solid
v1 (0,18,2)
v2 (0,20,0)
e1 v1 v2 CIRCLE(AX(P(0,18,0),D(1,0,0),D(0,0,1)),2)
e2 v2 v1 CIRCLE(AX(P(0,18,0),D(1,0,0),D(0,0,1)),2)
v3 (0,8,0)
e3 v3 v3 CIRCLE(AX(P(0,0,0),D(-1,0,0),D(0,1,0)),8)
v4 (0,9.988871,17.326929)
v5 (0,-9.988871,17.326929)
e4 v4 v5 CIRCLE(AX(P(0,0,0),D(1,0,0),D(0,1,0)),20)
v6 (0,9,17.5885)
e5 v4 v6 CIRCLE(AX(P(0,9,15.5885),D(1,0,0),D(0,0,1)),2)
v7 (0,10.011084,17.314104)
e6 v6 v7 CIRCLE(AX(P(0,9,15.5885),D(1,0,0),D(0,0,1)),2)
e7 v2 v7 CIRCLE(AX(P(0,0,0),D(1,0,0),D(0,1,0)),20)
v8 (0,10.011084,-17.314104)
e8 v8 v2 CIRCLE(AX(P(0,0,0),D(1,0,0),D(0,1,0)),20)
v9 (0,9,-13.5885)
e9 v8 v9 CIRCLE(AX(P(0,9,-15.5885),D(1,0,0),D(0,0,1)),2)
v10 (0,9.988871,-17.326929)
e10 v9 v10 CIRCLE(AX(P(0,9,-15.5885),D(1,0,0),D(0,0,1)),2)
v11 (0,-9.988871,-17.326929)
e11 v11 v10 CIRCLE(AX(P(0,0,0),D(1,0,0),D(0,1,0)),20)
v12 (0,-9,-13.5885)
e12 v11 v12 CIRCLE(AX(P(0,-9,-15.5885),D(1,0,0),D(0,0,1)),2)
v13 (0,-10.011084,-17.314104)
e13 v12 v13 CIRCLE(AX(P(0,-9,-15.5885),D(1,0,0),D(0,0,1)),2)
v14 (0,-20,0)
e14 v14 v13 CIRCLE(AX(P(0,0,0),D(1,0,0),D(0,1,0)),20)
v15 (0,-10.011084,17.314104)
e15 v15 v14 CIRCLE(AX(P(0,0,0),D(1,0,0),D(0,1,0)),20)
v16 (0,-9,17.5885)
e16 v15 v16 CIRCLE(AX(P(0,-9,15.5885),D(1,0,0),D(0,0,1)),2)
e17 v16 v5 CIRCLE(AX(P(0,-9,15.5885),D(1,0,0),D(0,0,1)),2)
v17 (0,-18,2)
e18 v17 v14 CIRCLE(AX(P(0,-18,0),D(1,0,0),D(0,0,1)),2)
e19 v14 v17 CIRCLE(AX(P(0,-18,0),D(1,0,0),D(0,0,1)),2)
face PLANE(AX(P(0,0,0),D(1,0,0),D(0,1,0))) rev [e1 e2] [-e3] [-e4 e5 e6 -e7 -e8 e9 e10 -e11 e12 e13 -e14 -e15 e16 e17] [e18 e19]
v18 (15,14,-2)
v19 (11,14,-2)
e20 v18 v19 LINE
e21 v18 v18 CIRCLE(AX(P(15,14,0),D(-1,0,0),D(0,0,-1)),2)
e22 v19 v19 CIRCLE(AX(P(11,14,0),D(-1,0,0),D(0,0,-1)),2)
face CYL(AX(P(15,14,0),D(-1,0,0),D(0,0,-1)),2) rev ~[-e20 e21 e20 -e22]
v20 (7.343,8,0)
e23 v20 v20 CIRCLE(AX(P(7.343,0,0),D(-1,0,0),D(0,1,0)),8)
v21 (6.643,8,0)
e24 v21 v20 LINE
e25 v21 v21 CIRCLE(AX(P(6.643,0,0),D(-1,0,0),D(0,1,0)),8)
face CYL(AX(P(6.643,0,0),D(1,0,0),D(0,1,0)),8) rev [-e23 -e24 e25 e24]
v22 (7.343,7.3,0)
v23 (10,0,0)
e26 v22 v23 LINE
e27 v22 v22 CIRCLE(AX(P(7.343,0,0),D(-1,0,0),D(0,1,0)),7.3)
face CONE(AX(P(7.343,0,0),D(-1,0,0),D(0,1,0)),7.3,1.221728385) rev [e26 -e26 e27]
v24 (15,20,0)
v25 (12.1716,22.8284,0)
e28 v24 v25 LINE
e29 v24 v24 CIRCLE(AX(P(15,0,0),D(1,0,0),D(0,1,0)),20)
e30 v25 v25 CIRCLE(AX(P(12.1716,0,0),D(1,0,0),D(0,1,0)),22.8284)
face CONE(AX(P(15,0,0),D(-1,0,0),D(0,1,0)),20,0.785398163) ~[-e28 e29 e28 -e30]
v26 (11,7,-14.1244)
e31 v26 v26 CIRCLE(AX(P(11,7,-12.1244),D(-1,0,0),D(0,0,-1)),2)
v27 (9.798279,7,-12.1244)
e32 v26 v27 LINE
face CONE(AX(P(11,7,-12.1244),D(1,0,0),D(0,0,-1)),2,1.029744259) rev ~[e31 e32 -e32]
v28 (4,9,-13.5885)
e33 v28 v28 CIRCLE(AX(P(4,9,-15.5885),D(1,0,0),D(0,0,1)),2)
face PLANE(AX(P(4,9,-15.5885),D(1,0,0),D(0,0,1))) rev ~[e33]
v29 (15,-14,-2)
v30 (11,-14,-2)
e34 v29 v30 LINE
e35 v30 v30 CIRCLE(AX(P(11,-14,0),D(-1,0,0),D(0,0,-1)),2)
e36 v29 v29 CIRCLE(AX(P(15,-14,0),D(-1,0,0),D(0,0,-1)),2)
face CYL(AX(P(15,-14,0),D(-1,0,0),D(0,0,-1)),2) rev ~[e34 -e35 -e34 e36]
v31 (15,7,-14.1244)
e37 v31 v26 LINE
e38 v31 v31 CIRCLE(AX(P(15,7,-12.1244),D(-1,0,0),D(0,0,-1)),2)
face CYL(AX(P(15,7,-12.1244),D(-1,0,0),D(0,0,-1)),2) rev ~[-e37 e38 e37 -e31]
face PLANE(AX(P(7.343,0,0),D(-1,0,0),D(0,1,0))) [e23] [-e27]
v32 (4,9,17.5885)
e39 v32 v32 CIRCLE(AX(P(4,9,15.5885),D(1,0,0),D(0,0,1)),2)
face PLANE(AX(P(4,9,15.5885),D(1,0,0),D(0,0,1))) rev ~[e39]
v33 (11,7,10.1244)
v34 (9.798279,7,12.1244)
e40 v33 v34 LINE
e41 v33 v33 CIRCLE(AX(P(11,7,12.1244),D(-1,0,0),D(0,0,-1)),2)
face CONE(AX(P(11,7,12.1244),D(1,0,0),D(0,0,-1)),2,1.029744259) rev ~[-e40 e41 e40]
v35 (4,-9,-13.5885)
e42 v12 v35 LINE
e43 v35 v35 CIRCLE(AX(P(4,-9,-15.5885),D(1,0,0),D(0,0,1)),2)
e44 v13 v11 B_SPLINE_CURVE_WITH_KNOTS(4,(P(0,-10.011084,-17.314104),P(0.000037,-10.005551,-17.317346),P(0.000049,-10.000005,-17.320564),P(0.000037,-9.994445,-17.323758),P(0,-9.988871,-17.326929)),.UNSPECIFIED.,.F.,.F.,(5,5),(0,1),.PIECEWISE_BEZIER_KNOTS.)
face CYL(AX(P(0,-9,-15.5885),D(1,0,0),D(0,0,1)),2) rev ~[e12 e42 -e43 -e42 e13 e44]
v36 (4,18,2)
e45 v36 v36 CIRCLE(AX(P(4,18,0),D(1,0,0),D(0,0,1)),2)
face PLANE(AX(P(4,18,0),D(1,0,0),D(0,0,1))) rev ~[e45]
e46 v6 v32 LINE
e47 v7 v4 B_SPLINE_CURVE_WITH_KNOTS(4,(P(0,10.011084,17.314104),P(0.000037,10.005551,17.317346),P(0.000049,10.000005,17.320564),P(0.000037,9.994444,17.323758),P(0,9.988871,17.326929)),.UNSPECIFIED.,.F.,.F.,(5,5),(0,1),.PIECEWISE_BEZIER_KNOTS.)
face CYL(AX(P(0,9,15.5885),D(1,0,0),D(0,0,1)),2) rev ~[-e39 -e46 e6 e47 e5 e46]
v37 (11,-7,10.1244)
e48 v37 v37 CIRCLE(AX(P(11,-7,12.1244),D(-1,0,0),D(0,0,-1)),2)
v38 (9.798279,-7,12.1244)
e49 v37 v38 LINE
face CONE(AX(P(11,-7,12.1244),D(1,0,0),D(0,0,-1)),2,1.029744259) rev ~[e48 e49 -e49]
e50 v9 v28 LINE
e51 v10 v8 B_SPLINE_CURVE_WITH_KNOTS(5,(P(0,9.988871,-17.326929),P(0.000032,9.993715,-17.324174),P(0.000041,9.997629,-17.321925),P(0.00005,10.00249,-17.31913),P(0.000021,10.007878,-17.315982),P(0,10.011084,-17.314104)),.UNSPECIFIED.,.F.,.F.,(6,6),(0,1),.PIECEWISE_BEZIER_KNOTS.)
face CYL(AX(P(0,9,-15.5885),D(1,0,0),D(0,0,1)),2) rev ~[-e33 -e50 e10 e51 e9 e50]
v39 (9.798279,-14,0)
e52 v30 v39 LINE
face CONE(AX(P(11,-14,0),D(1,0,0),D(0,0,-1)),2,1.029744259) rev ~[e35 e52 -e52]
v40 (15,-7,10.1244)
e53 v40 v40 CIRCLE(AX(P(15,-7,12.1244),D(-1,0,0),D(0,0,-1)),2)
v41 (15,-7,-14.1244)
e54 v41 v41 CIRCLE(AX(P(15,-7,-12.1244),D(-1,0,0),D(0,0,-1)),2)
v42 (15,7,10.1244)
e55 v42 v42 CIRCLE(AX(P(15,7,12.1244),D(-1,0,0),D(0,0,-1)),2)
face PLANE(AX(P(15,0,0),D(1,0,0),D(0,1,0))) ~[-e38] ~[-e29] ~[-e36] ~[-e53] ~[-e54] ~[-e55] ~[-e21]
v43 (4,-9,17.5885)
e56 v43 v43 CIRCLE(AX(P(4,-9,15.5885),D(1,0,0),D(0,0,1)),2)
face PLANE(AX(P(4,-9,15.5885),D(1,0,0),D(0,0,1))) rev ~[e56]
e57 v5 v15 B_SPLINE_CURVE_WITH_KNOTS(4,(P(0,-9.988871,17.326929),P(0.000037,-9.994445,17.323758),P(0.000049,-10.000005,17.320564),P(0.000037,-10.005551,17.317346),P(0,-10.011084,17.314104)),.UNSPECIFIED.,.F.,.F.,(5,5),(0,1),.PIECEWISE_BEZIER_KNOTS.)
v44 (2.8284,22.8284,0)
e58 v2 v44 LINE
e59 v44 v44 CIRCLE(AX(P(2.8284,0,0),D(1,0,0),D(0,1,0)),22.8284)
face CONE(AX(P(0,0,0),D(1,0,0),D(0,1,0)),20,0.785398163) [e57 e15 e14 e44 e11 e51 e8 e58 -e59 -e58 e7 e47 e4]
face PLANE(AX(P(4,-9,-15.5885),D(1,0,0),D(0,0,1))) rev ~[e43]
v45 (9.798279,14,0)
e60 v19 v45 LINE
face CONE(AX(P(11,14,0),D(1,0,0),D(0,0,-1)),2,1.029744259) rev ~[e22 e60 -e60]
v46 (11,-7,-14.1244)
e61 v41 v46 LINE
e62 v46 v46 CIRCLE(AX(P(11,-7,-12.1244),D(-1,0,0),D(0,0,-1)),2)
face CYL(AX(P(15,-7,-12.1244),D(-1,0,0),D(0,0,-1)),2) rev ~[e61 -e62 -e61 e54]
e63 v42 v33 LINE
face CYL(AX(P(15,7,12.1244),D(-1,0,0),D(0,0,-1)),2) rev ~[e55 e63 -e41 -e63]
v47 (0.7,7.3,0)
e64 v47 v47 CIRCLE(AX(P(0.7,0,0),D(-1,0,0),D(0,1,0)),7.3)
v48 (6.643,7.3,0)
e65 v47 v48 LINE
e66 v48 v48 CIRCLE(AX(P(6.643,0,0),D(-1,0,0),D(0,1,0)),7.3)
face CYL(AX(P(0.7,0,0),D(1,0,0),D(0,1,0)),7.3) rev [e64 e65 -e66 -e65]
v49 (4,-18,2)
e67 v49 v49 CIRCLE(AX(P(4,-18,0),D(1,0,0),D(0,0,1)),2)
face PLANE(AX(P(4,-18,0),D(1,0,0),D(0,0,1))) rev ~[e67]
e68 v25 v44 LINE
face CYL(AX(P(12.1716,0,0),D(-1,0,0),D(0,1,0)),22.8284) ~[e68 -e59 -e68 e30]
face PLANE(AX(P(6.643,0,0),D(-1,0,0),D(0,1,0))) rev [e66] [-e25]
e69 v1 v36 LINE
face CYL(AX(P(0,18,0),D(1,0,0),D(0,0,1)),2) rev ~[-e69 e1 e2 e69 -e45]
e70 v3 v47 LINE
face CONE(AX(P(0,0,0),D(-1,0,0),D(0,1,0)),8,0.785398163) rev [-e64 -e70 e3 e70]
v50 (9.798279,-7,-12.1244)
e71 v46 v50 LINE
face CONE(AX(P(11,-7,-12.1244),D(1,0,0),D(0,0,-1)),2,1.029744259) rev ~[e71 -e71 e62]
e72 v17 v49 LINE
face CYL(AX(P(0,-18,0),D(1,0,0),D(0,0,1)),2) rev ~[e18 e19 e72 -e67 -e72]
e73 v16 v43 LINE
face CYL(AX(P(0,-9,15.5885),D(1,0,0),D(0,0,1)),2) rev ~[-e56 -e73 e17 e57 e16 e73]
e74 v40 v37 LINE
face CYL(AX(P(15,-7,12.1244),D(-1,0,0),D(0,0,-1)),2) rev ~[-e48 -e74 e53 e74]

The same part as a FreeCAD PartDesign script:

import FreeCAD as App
import Part
import Sketcher

V = App.Vector
Q = App.Units.Quantity


def add_polygon(sketch, points):
    """Adds a closed chain of lines whose ends are joined by coincident constraints."""
    first, n = sketch.GeometryCount, len(points)
    for a, b in zip(points, points[1:] + points[:1]):
        sketch.addGeometry(Part.LineSegment(App.Vector(*a, 0), App.Vector(*b, 0)), False)
    for i in range(n):
        sketch.addConstraint(Sketcher.Constraint("Coincident", first + i, 2, first + (i + 1) % n, 1))

doc = App.newDocument("Part")
body = doc.addObject("PartDesign::Body", "Body")

# Sketch on XY plane
sketch1 = body.newObject("Sketcher::SketchObject", "Sketch")
sketch1.AttachmentSupport = (doc.getObject("XY_Plane"), [""])
sketch1.MapMode = "FlatFace"
add_polygon(sketch1, [(0, 20), (0, 0), (15, 0), (15, 20), (12.1716, 22.8284), (2.8284, 22.8284)])  # lines 0-5
sketch1.addConstraint(Sketcher.Constraint("Vertical", 0))
sketch1.addConstraint(Sketcher.Constraint("Horizontal", 1))
sketch1.addConstraint(Sketcher.Constraint("Vertical", 2))
sketch1.addConstraint(Sketcher.Constraint("Horizontal", 4))
sketch1.addConstraint(Sketcher.Constraint("Coincident", 0, 2, -1, 1))
sketch1.addConstraint(Sketcher.Constraint("Perpendicular", 3, 5))
sketch1.addConstraint(Sketcher.Constraint("Horizontal", 2, 2, 5, 2))
sketch1.addConstraint(Sketcher.Constraint("Equal", 3, 5))
sketch1.addConstraint(Sketcher.Constraint("DistanceX", 1, 1, 1, 2, Q("15 mm")))
sketch1.addConstraint(Sketcher.Constraint("DistanceY", 0, 2, 0, 1, Q("20 mm")))
sketch1.addConstraint(Sketcher.Constraint("Distance", 3, Q("4 mm")))
revolution = body.newObject("PartDesign::Revolution", "Revolution")
revolution.Profile = sketch1
revolution.ReferenceAxis = (sketch1, ["H_Axis"])
revolution.Angle = 360

# Sketch on YZ plane
sketch2 = body.newObject("Sketcher::SketchObject", "Sketch001")
sketch2.AttachmentSupport = (doc.getObject("YZ_Plane"), [""])
sketch2.MapMode = "FlatFace"
sketch2.addGeometry(Part.Circle(V(18, 0, 0), V(0, 0, 1), 2), False)
sketch2.addGeometry(Part.Circle(V(9, -15.5885, 0), V(0, 0, 1), 2), False)
sketch2.addGeometry(Part.Circle(V(-9, -15.5885, 0), V(0, 0, 1), 2), False)
sketch2.addGeometry(Part.Circle(V(-18, 0, 0), V(0, 0, 1), 2), False)
sketch2.addGeometry(Part.Circle(V(-9, 15.5885, 0), V(0, 0, 1), 2), False)
sketch2.addGeometry(Part.Circle(V(9, 15.5885, 0), V(0, 0, 1), 2), False)
sketch2.addConstraint(Sketcher.Constraint("Equal", 0, 1))
sketch2.addConstraint(Sketcher.Constraint("Equal", 1, 2))
sketch2.addConstraint(Sketcher.Constraint("Equal", 2, 3))
sketch2.addConstraint(Sketcher.Constraint("Equal", 3, 4))
sketch2.addConstraint(Sketcher.Constraint("Equal", 4, 5))
sketch2.addConstraint(Sketcher.Constraint("Symmetric", 0, 3, 3, 3, -1, 1))
sketch2.addConstraint(Sketcher.Constraint("Symmetric", 1, 3, 4, 3, -1, 1))
sketch2.addConstraint(Sketcher.Constraint("Symmetric", 2, 3, 5, 3, -1, 1))
sketch2.addConstraint(Sketcher.Constraint("Symmetric", 1, 3, 2, 3, -2))
sketch2.addConstraint(Sketcher.Constraint("PointOnObject", 0, 3, -1))
sketch2.addConstraint(Sketcher.Constraint("Diameter", 0, Q("4 mm")))
sketch2.addConstraint(Sketcher.Constraint("DistanceX", -1, 1, 0, 3, Q("18 mm")))
sketch2.addConstraint(Sketcher.Constraint("DistanceX", -1, 1, 1, 3, Q("9 mm")))
sketch2.addConstraint(Sketcher.Constraint("DistanceY", 2, 3, 4, 3, Q("31.177 mm")))
doc.recompute()
hole = body.newObject("PartDesign::Hole", "Hole")
hole.Profile = sketch2
hole.ThreadType = "None"
hole.Diameter = 4
hole.DepthType = "Dimension"
hole.Depth = 4
hole.DrillPoint = "Flat"
hole.Reversed = True

# Sketch on YZ plane
sketch3 = body.newObject("Sketcher::SketchObject", "Sketch002")
sketch3.AttachmentSupport = (doc.getObject("YZ_Plane"), [""])
sketch3.MapMode = "FlatFace"
sketch3.AttachmentOffset = App.Placement(V(0, 0, 15), App.Rotation())
sketch3.addGeometry(Part.Circle(V(14, 0, 0), V(0, 0, 1), 2), False)
sketch3.addGeometry(Part.Circle(V(7, 12.1244, 0), V(0, 0, 1), 2), False)
sketch3.addGeometry(Part.Circle(V(-7, 12.1244, 0), V(0, 0, 1), 2), False)
sketch3.addGeometry(Part.Circle(V(-14, 0, 0), V(0, 0, 1), 2), False)
sketch3.addGeometry(Part.Circle(V(-7, -12.1244, 0), V(0, 0, 1), 2), False)
sketch3.addGeometry(Part.Circle(V(7, -12.1244, 0), V(0, 0, 1), 2), False)
sketch3.addConstraint(Sketcher.Constraint("Equal", 0, 1))
sketch3.addConstraint(Sketcher.Constraint("Equal", 1, 2))
sketch3.addConstraint(Sketcher.Constraint("Equal", 2, 3))
sketch3.addConstraint(Sketcher.Constraint("Equal", 3, 4))
sketch3.addConstraint(Sketcher.Constraint("Equal", 4, 5))
sketch3.addConstraint(Sketcher.Constraint("Symmetric", 0, 3, 3, 3, -1, 1))
sketch3.addConstraint(Sketcher.Constraint("Symmetric", 1, 3, 4, 3, -1, 1))
sketch3.addConstraint(Sketcher.Constraint("Symmetric", 2, 3, 5, 3, -1, 1))
sketch3.addConstraint(Sketcher.Constraint("Symmetric", 1, 3, 2, 3, -2))
sketch3.addConstraint(Sketcher.Constraint("PointOnObject", 0, 3, -1))
sketch3.addConstraint(Sketcher.Constraint("Diameter", 0, Q("4 mm")))
sketch3.addConstraint(Sketcher.Constraint("DistanceX", -1, 1, 0, 3, Q("14 mm")))
sketch3.addConstraint(Sketcher.Constraint("DistanceX", -1, 1, 1, 3, Q("7 mm")))
sketch3.addConstraint(Sketcher.Constraint("DistanceY", -1, 1, 1, 3, Q("12.1244 mm")))
doc.recompute()
hole2 = body.newObject("PartDesign::Hole", "Hole001")
hole2.Profile = sketch3
hole2.ThreadType = "None"
hole2.Diameter = 4
hole2.DepthType = "Dimension"
hole2.Depth = 4
hole2.DrillPoint = "Angled"
hole2.DrillPointAngle = 118

# Sketch on XY plane
sketch4 = body.newObject("Sketcher::SketchObject", "Sketch003")
sketch4.AttachmentSupport = (doc.getObject("XY_Plane"), [""])
sketch4.MapMode = "FlatFace"
add_polygon(sketch4, [(0, 8), (0, 0), (10, 0), (7.343, 7.3), (7.343, 8), (6.643, 8), (6.643, 7.3), (0.7, 7.3)])  # lines 0-7
sketch4.addConstraint(Sketcher.Constraint("Vertical", 0))
sketch4.addConstraint(Sketcher.Constraint("Horizontal", 1))
sketch4.addConstraint(Sketcher.Constraint("Vertical", 3))
sketch4.addConstraint(Sketcher.Constraint("Horizontal", 4))
sketch4.addConstraint(Sketcher.Constraint("Vertical", 5))
sketch4.addConstraint(Sketcher.Constraint("Horizontal", 6))
sketch4.addConstraint(Sketcher.Constraint("Coincident", 0, 2, -1, 1))
sketch4.addConstraint(Sketcher.Constraint("Horizontal", 2, 2, 5, 2))
sketch4.addConstraint(Sketcher.Constraint("Horizontal", 4, 2, 7, 2))
sketch4.addConstraint(Sketcher.Constraint("Equal", 4, 3))
sketch4.addConstraint(Sketcher.Constraint("DistanceX", 1, 1, 1, 2, Q("10 mm")))
sketch4.addConstraint(Sketcher.Constraint("DistanceY", 0, 2, 0, 1, Q("8 mm")))
sketch4.addConstraint(Sketcher.Constraint("DistanceX", 4, 2, 4, 1, Q("0.7 mm")))
sketch4.addConstraint(Sketcher.Constraint("DistanceX", -1, 1, 6, 2, Q("0.7 mm")))
sketch4.addConstraint(Sketcher.Constraint("Angle", 2, Q("110 deg")))
groove = body.newObject("PartDesign::Groove", "Groove")
groove.Profile = sketch4
groove.ReferenceAxis = (sketch4, ["H_Axis"])
groove.Angle = 360

doc.recompute()
